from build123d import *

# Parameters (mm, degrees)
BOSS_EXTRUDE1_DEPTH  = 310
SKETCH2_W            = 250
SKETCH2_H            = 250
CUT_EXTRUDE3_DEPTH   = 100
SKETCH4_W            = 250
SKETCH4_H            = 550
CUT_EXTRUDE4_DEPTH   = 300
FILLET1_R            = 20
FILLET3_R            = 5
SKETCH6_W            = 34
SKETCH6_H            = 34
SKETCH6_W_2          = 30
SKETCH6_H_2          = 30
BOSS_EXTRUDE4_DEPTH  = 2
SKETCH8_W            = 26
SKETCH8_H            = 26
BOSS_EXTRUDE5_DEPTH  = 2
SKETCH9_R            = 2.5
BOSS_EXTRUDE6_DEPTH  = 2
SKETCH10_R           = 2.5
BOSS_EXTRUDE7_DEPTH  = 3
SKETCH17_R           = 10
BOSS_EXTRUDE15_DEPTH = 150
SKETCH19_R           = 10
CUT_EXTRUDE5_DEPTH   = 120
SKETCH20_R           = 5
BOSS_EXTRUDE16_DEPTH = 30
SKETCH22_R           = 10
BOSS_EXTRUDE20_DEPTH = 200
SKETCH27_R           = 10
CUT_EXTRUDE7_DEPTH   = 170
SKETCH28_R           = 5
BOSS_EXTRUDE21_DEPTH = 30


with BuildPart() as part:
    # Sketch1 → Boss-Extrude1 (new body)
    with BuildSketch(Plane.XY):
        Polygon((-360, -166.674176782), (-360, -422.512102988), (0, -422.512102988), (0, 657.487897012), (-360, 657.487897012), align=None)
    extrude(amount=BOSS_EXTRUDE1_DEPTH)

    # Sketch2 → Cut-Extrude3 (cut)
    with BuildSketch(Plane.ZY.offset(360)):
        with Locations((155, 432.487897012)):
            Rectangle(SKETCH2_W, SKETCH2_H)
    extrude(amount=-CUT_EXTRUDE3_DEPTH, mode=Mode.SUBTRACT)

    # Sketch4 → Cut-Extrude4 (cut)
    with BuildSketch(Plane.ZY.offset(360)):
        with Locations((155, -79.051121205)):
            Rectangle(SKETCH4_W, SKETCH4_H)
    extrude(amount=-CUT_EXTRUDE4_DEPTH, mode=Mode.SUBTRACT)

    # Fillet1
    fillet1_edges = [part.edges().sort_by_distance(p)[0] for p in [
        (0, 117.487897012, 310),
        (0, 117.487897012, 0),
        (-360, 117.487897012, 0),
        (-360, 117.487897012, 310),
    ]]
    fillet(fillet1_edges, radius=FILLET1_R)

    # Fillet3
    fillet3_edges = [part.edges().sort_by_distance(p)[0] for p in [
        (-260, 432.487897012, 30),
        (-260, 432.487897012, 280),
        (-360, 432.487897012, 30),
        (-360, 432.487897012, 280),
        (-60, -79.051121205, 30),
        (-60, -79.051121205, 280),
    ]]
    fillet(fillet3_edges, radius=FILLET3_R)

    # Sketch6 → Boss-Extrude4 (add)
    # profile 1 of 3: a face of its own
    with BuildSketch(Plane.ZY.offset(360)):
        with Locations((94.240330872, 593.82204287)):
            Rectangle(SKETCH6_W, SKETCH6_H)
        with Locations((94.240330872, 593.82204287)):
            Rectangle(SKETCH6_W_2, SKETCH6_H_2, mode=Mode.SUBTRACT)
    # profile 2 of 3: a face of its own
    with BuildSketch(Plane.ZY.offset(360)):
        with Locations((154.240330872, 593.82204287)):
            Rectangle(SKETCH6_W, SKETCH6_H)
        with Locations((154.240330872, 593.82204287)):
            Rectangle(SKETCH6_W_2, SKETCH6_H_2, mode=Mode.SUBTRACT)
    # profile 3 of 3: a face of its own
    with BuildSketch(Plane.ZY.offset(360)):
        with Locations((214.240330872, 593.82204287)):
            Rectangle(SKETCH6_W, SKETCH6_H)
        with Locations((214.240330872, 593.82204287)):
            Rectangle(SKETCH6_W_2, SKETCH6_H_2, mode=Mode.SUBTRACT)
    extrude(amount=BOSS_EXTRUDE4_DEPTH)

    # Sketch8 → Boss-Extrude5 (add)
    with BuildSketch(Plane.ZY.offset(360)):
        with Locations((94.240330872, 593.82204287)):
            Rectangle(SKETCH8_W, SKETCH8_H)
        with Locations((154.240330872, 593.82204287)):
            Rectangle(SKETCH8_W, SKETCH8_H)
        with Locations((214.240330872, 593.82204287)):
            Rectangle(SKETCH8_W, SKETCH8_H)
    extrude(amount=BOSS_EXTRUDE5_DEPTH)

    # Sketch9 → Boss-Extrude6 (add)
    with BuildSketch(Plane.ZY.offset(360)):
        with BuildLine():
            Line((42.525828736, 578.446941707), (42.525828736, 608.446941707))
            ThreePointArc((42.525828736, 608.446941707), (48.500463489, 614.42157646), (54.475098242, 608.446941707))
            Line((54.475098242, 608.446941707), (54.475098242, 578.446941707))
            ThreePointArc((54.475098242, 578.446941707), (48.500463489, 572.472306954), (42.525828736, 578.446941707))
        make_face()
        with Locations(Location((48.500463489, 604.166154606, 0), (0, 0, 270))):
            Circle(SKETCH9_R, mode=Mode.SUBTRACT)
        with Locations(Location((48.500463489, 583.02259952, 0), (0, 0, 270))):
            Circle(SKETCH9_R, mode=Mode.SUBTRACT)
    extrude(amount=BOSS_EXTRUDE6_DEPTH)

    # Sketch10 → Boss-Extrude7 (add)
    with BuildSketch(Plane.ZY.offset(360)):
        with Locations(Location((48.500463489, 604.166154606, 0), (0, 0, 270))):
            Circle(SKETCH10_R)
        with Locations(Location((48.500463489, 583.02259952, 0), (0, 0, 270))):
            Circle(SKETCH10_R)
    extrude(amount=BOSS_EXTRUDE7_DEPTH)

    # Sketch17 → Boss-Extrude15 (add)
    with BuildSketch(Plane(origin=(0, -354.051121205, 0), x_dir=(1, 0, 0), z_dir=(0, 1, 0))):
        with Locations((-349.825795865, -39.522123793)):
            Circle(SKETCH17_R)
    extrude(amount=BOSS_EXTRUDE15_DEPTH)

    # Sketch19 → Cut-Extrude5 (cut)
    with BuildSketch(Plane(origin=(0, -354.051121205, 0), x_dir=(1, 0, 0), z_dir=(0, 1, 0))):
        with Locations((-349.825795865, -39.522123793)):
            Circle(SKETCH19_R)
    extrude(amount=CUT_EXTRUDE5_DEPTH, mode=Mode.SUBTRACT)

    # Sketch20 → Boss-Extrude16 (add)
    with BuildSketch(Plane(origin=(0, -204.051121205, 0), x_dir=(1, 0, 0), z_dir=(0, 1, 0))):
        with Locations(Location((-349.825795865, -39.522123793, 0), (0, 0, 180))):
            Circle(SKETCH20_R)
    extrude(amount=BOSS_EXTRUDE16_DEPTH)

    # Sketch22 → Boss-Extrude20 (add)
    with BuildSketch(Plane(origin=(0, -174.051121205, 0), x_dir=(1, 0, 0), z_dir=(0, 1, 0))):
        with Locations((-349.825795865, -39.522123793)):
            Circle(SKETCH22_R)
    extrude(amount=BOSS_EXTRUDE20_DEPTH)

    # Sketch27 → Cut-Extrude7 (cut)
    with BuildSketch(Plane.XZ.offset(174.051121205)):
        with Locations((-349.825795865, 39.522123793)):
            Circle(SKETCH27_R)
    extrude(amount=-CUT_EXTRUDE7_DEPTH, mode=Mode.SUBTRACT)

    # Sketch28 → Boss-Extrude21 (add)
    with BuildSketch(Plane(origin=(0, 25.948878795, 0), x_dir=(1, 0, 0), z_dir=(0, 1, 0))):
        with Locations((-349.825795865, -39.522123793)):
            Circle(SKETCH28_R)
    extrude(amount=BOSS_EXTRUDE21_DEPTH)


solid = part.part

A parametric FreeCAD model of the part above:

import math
import FreeCAD as App
import Part
import Sketcher
from FreeCAD import Vector
Q = App.Units.Quantity


def edges_at(feature, points):
    """Names of the edges that pass closest to the given points."""
    edges = feature.Shape.Edges
    near = lambda p: min(range(len(edges)), key=lambda i: edges[i].distToShape(Part.Vertex(*p))[0])
    return sorted({f"Edge{near(p) + 1}" for p in points})

doc = App.newDocument("Part")
body = doc.addObject("PartDesign::Body", "Body")

# Sketch on XY plane
sketch1 = body.newObject("Sketcher::SketchObject", "Sketch")
sketch1.AttachmentSupport = (doc.getObject("XY_Plane"), [""])
sketch1.MapMode = "FlatFace"
sketch1.addGeometry([
    Part.LineSegment(Vector(-360, -423, 0), Vector(0, -423, 0)),
    Part.LineSegment(Vector(0, -423, 0), Vector(0, 657, 0)),
    Part.LineSegment(Vector(0, 657, 0), Vector(-360, 657, 0)),
    Part.LineSegment(Vector(-360, 657, 0), Vector(-360, -423, 0)),
], False)
sketch1.addConstraint([
    Sketcher.Constraint("Coincident", 0, 2, 1, 1),
    Sketcher.Constraint("Coincident", 1, 2, 2, 1),
    Sketcher.Constraint("Coincident", 2, 2, 3, 1),
    Sketcher.Constraint("Coincident", 3, 2, 0, 1),
    Sketcher.Constraint("Horizontal", 0),
    Sketcher.Constraint("Vertical", 1),
    Sketcher.Constraint("Horizontal", 2),
    Sketcher.Constraint("Vertical", 3),
    Sketcher.Constraint("PointOnObject", 0, 2, -2),
    Sketcher.Constraint("DistanceX", 0, 1, 0, 2, Q("360 mm")),
    Sketcher.Constraint("DistanceY", 1, 1, 1, 2, Q("1080 mm")),
    Sketcher.Constraint("DistanceY", 0, 2, -1, 1, Q("422.512103 mm")),
])
pad1 = body.newObject("PartDesign::Pad", "Pad")
pad1.Profile = sketch1
pad1.Length = 310

# Sketch on YZ plane
sketch2 = body.newObject("Sketcher::SketchObject", "Sketch001")
sketch2.AttachmentSupport = (doc.getObject("YZ_Plane"), [""])
sketch2.MapMode = "FlatFace"
sketch2.AttachmentOffset = App.Placement(Vector(0, 0, -360), App.Rotation())
sketch2.addGeometry([
    Part.LineSegment(Vector(557, 30, 0), Vector(307, 30, 0)),
    Part.LineSegment(Vector(307, 30, 0), Vector(307, 280, 0)),
    Part.LineSegment(Vector(307, 280, 0), Vector(557, 280, 0)),
    Part.LineSegment(Vector(557, 280, 0), Vector(557, 30, 0)),
], False)
sketch2.addConstraint([
    Sketcher.Constraint("Coincident", 0, 2, 1, 1),
    Sketcher.Constraint("Coincident", 1, 2, 2, 1),
    Sketcher.Constraint("Coincident", 2, 2, 3, 1),
    Sketcher.Constraint("Coincident", 3, 2, 0, 1),
    Sketcher.Constraint("Horizontal", 0),
    Sketcher.Constraint("Vertical", 1),
    Sketcher.Constraint("Horizontal", 2),
    Sketcher.Constraint("Vertical", 3),
    Sketcher.Constraint("Equal", 2, 1),
    Sketcher.Constraint("DistanceX", 0, 2, 0, 1, Q("250 mm")),
    Sketcher.Constraint("DistanceY", -1, 1, 0, 2, Q("30 mm")),
    Sketcher.Constraint("DistanceX", -1, 1, 0, 2, Q("307.487897 mm")),
])
pocket1 = body.newObject("PartDesign::Pocket", "Pocket")
pocket1.Profile = sketch2
pocket1.Length = 100
pocket1.Reversed = True

# Sketch on YZ plane
sketch3 = body.newObject("Sketcher::SketchObject", "Sketch002")
sketch3.AttachmentSupport = (doc.getObject("YZ_Plane"), [""])
sketch3.MapMode = "FlatFace"
sketch3.AttachmentOffset = App.Placement(Vector(0, 0, -360), App.Rotation())
sketch3.addGeometry([
    Part.LineSegment(Vector(196, 30, 0), Vector(-354, 30, 0)),
    Part.LineSegment(Vector(-354, 30, 0), Vector(-354, 280, 0)),
    Part.LineSegment(Vector(-354, 280, 0), Vector(196, 280, 0)),
    Part.LineSegment(Vector(196, 280, 0), Vector(196, 30, 0)),
], False)
sketch3.addConstraint([
    Sketcher.Constraint("Coincident", 0, 2, 1, 1),
    Sketcher.Constraint("Coincident", 1, 2, 2, 1),
    Sketcher.Constraint("Coincident", 2, 2, 3, 1),
    Sketcher.Constraint("Coincident", 3, 2, 0, 1),
    Sketcher.Constraint("Horizontal", 0),
    Sketcher.Constraint("Vertical", 1),
    Sketcher.Constraint("Horizontal", 2),
    Sketcher.Constraint("Vertical", 3),
    Sketcher.Constraint("DistanceX", 0, 2, 0, 1, Q("550 mm")),
    Sketcher.Constraint("DistanceY", 1, 1, 1, 2, Q("250 mm")),
    Sketcher.Constraint("DistanceY", -1, 1, 0, 2, Q("30 mm")),
    Sketcher.Constraint("DistanceX", 0, 2, -1, 1, Q("354.051121 mm")),
])
pocket2 = body.newObject("PartDesign::Pocket", "Pocket001")
pocket2.Profile = sketch3
pocket2.Length = 300
pocket2.Reversed = True
doc.recompute()

fillet = body.newObject("PartDesign::Fillet", "Fillet")
fillet.Base = (pocket2, edges_at(pocket2, [
    (0, 117.488, 310),
    (0, 117.488, 0),
    (-360, 117.488, 0),
    (-360, 117.488, 310),
]))
fillet.Radius = 20
doc.recompute()

fillet2 = body.newObject("PartDesign::Fillet", "Fillet001")
fillet2.Base = (fillet, edges_at(fillet, [
    (-260, 432.488, 30),
    (-260, 432.488, 280),
    (-360, 432.488, 30),
    (-360, 432.488, 280),
    (-60, -79.051, 30),
    (-60, -79.051, 280),
]))
fillet2.Radius = 5

# Sketch on YZ plane
sketch4 = body.newObject("Sketcher::SketchObject", "Sketch003")
sketch4.AttachmentSupport = (doc.getObject("YZ_Plane"), [""])
sketch4.MapMode = "FlatFace"
sketch4.AttachmentOffset = App.Placement(Vector(0, 0, -360), App.Rotation())
sketch4.addGeometry([
    Part.LineSegment(Vector(611, 77, 0), Vector(577, 77, 0)),  # 0
    Part.LineSegment(Vector(577, 77, 0), Vector(577, 111, 0)),  # 1
    Part.LineSegment(Vector(577, 111, 0), Vector(611, 111, 0)),  # 2
    Part.LineSegment(Vector(611, 111, 0), Vector(611, 77, 0)),  # 3
    Part.LineSegment(Vector(579, 109, 0), Vector(579, 79, 0)),  # 4
    Part.LineSegment(Vector(579, 79, 0), Vector(609, 79, 0)),  # 5
    Part.LineSegment(Vector(609, 79, 0), Vector(609, 109, 0)),  # 6
    Part.LineSegment(Vector(609, 109, 0), Vector(579, 109, 0)),  # 7
    Part.LineSegment(Vector(611, 137, 0), Vector(577, 137, 0)),  # 8
    Part.LineSegment(Vector(577, 137, 0), Vector(577, 171, 0)),  # 9
    Part.LineSegment(Vector(577, 171, 0), Vector(611, 171, 0)),  # 10
    Part.LineSegment(Vector(611, 171, 0), Vector(611, 137, 0)),  # 11
    Part.LineSegment(Vector(579, 169, 0), Vector(579, 139, 0)),  # 12
    Part.LineSegment(Vector(579, 139, 0), Vector(609, 139, 0)),  # 13
    Part.LineSegment(Vector(609, 139, 0), Vector(609, 169, 0)),  # 14
    Part.LineSegment(Vector(609, 169, 0), Vector(579, 169, 0)),  # 15
    Part.LineSegment(Vector(611, 197, 0), Vector(577, 197, 0)),  # 16
    Part.LineSegment(Vector(577, 197, 0), Vector(577, 231, 0)),  # 17
    Part.LineSegment(Vector(577, 231, 0), Vector(611, 231, 0)),  # 18
    Part.LineSegment(Vector(611, 231, 0), Vector(611, 197, 0)),  # 19
    Part.LineSegment(Vector(579, 229, 0), Vector(579, 199, 0)),  # 20
    Part.LineSegment(Vector(579, 199, 0), Vector(609, 199, 0)),  # 21
    Part.LineSegment(Vector(609, 199, 0), Vector(609, 229, 0)),  # 22
    Part.LineSegment(Vector(609, 229, 0), Vector(579, 229, 0)),  # 23
], False)
sketch4.addConstraint([
    Sketcher.Constraint("Coincident", 0, 2, 1, 1),
    Sketcher.Constraint("Coincident", 1, 2, 2, 1),
    Sketcher.Constraint("Coincident", 2, 2, 3, 1),
    Sketcher.Constraint("Coincident", 3, 2, 0, 1),
    Sketcher.Constraint("Coincident", 4, 2, 5, 1),
    Sketcher.Constraint("Coincident", 5, 2, 6, 1),
    Sketcher.Constraint("Coincident", 6, 2, 7, 1),
    Sketcher.Constraint("Coincident", 7, 2, 4, 1),
    Sketcher.Constraint("Coincident", 8, 2, 9, 1),
    Sketcher.Constraint("Coincident", 9, 2, 10, 1),
    Sketcher.Constraint("Coincident", 10, 2, 11, 1),
    Sketcher.Constraint("Coincident", 11, 2, 8, 1),
    Sketcher.Constraint("Coincident", 12, 2, 13, 1),
    Sketcher.Constraint("Coincident", 13, 2, 14, 1),
    Sketcher.Constraint("Coincident", 14, 2, 15, 1),
    Sketcher.Constraint("Coincident", 15, 2, 12, 1),
    Sketcher.Constraint("Coincident", 16, 2, 17, 1),
    Sketcher.Constraint("Coincident", 17, 2, 18, 1),
    Sketcher.Constraint("Coincident", 18, 2, 19, 1),
    Sketcher.Constraint("Coincident", 19, 2, 16, 1),
    Sketcher.Constraint("Coincident", 20, 2, 21, 1),
    Sketcher.Constraint("Coincident", 21, 2, 22, 1),
    Sketcher.Constraint("Coincident", 22, 2, 23, 1),
    Sketcher.Constraint("Coincident", 23, 2, 20, 1),
    Sketcher.Constraint("Horizontal", 0),
    Sketcher.Constraint("Vertical", 1),
    Sketcher.Constraint("Horizontal", 2),
    Sketcher.Constraint("Vertical", 3),
    Sketcher.Constraint("Vertical", 4),
    Sketcher.Constraint("Horizontal", 5),
    Sketcher.Constraint("Vertical", 6),
    Sketcher.Constraint("Horizontal", 7),
    Sketcher.Constraint("Horizontal", 8),
    Sketcher.Constraint("Vertical", 9),
    Sketcher.Constraint("Horizontal", 10),
    Sketcher.Constraint("Vertical", 11),
    Sketcher.Constraint("Vertical", 12),
    Sketcher.Constraint("Horizontal", 13),
    Sketcher.Constraint("Vertical", 14),
    Sketcher.Constraint("Horizontal", 15),
    Sketcher.Constraint("Horizontal", 16),
    Sketcher.Constraint("Vertical", 17),
    Sketcher.Constraint("Horizontal", 18),
    Sketcher.Constraint("Vertical", 19),
    Sketcher.Constraint("Vertical", 20),
    Sketcher.Constraint("Horizontal", 21),
    Sketcher.Constraint("Vertical", 22),
    Sketcher.Constraint("Horizontal", 23),
    Sketcher.Constraint("Vertical", 1, 2, 8, 2),
    Sketcher.Constraint("Vertical", 3, 2, 10, 2),
    Sketcher.Constraint("Vertical", 7, 2, 12, 2),
    Sketcher.Constraint("Vertical", 6, 2, 13, 2),
    Sketcher.Constraint("Vertical", 9, 2, 16, 2),
    Sketcher.Constraint("Vertical", 11, 2, 18, 2),
    Sketcher.Constraint("Vertical", 15, 2, 20, 2),
    Sketcher.Constraint("Vertical", 14, 2, 21, 2),
    Sketcher.Constraint("Equal", 18, 1),
    Sketcher.Constraint("Equal", 23, 4),
    Sketcher.Constraint("Equal", 3, 9),
    Sketcher.Constraint("Equal", 6, 12),
    Sketcher.Constraint("Equal", 11, 17),
    Sketcher.Constraint("Equal", 14, 20),
    Sketcher.Constraint("DistanceX", 0, 2, 0, 1, Q("34 mm")),
    Sketcher.Constraint("DistanceX", 5, 1, 5, 2, Q("30 mm")),
    Sketcher.Constraint("DistanceX", 0, 2, 4, 2, Q("2 mm")),
    Sketcher.Constraint("DistanceY", 0, 2, 4, 2, Q("2 mm")),
    Sketcher.Constraint("DistanceY", 1, 2, 8, 2, Q("26 mm")),
    Sketcher.Constraint("DistanceY", 8, 2, 12, 2, Q("2 mm")),
    Sketcher.Constraint("DistanceY", 9, 2, 16, 2, Q("26 mm")),
    Sketcher.Constraint("DistanceY", 16, 2, 20, 2, Q("2 mm")),
    Sketcher.Constraint("DistanceY", -1, 1, 0, 2, Q("77.240331 mm")),
    Sketcher.Constraint("DistanceX", -1, 1, 0, 2, Q("576.822043 mm")),
])
pad2 = body.newObject("PartDesign::Pad", "Pad001")
pad2.Profile = sketch4
pad2.Length = 2
pad2.Reversed = True

# Sketch on YZ plane
sketch5 = body.newObject("Sketcher::SketchObject", "Sketch004")
sketch5.AttachmentSupport = (doc.getObject("YZ_Plane"), [""])
sketch5.MapMode = "FlatFace"
sketch5.AttachmentOffset = App.Placement(Vector(0, 0, -360), App.Rotation())
sketch5.addGeometry([
    Part.LineSegment(Vector(607, 81, 0), Vector(581, 81, 0)),  # 0
    Part.LineSegment(Vector(581, 81, 0), Vector(581, 107, 0)),  # 1
    Part.LineSegment(Vector(581, 107, 0), Vector(607, 107, 0)),  # 2
    Part.LineSegment(Vector(607, 107, 0), Vector(607, 81, 0)),  # 3
    Part.LineSegment(Vector(607, 141, 0), Vector(581, 141, 0)),  # 4
    Part.LineSegment(Vector(581, 141, 0), Vector(581, 167, 0)),  # 5
    Part.LineSegment(Vector(581, 167, 0), Vector(607, 167, 0)),  # 6
    Part.LineSegment(Vector(607, 167, 0), Vector(607, 141, 0)),  # 7
    Part.LineSegment(Vector(607, 201, 0), Vector(581, 201, 0)),  # 8
    Part.LineSegment(Vector(581, 201, 0), Vector(581, 227, 0)),  # 9
    Part.LineSegment(Vector(581, 227, 0), Vector(607, 227, 0)),  # 10
    Part.LineSegment(Vector(607, 227, 0), Vector(607, 201, 0)),  # 11
], False)
sketch5.addConstraint([
    Sketcher.Constraint("Coincident", 0, 2, 1, 1),
    Sketcher.Constraint("Coincident", 1, 2, 2, 1),
    Sketcher.Constraint("Coincident", 2, 2, 3, 1),
    Sketcher.Constraint("Coincident", 3, 2, 0, 1),
    Sketcher.Constraint("Coincident", 4, 2, 5, 1),
    Sketcher.Constraint("Coincident", 5, 2, 6, 1),
    Sketcher.Constraint("Coincident", 6, 2, 7, 1),
    Sketcher.Constraint("Coincident", 7, 2, 4, 1),
    Sketcher.Constraint("Coincident", 8, 2, 9, 1),
    Sketcher.Constraint("Coincident", 9, 2, 10, 1),
    Sketcher.Constraint("Coincident", 10, 2, 11, 1),
    Sketcher.Constraint("Coincident", 11, 2, 8, 1),
    Sketcher.Constraint("Horizontal", 0),
    Sketcher.Constraint("Vertical", 1),
    Sketcher.Constraint("Horizontal", 2),
    Sketcher.Constraint("Vertical", 3),
    Sketcher.Constraint("Horizontal", 4),
    Sketcher.Constraint("Vertical", 5),
    Sketcher.Constraint("Horizontal", 6),
    Sketcher.Constraint("Vertical", 7),
    Sketcher.Constraint("Horizontal", 8),
    Sketcher.Constraint("Vertical", 9),
    Sketcher.Constraint("Horizontal", 10),
    Sketcher.Constraint("Vertical", 11),
    Sketcher.Constraint("Vertical", 1, 2, 4, 2),
    Sketcher.Constraint("Vertical", 3, 2, 6, 2),
    Sketcher.Constraint("Vertical", 5, 2, 8, 2),
    Sketcher.Constraint("Vertical", 7, 2, 10, 2),
    Sketcher.Constraint("Equal", 10, 1),
    Sketcher.Constraint("Equal", 3, 5),
    Sketcher.Constraint("Equal", 7, 9),
    Sketcher.Constraint("DistanceX", 0, 2, 0, 1, Q("26 mm")),
    Sketcher.Constraint("DistanceY", 1, 2, 4, 2, Q("34 mm")),
    Sketcher.Constraint("DistanceY", 5, 2, 8, 2, Q("34 mm")),
    Sketcher.Constraint("DistanceY", -1, 1, 0, 2, Q("81.240331 mm")),
    Sketcher.Constraint("DistanceX", -1, 1, 0, 2, Q("580.822043 mm")),
])
pad3 = body.newObject("PartDesign::Pad", "Pad002")
pad3.Profile = sketch5
pad3.Length = 2
pad3.Reversed = True

# Sketch on YZ plane
sketch6 = body.newObject("Sketcher::SketchObject", "Sketch005")
sketch6.AttachmentSupport = (doc.getObject("YZ_Plane"), [""])
sketch6.MapMode = "FlatFace"
sketch6.AttachmentOffset = App.Placement(Vector(0, 0, -360), App.Rotation())
sketch6.addGeometry([
    Part.LineSegment(Vector(608.4, 42.5, 0), Vector(578.4, 42.5, 0)),  # 0
    Part.ArcOfCircle(Part.Circle(Vector(578.4, 48.5, 0), Vector(0, 0, 1), 6), math.radians(90), math.radians(270)),  # 1
    Part.LineSegment(Vector(578.4, 54.5, 0), Vector(608.4, 54.5, 0)),  # 2
    Part.ArcOfCircle(Part.Circle(Vector(608.4, 48.5, 0), Vector(0, 0, 1), 6), math.radians(-90), math.radians(90)),  # 3
    Part.Circle(Vector(583, 48.5, 0), Vector(0, 0, 1), 2.5),  # 4
    Part.Circle(Vector(604.2, 48.5, 0), Vector(0, 0, 1), 2.5),  # 5
], False)
sketch6.addConstraint([
    Sketcher.Constraint("Tangent", 0, 2, 1, 2),
    Sketcher.Constraint("Tangent", 1, 1, 2, 1),
    Sketcher.Constraint("Tangent", 2, 2, 3, 2),
    Sketcher.Constraint("Tangent", 3, 1, 0, 1),
    Sketcher.Constraint("Horizontal", 0),
    Sketcher.Constraint("Horizontal", 2),
    Sketcher.Constraint("Equal", 4, 5),
    Sketcher.Constraint("Horizontal", 3, 3, 4, 3),
    Sketcher.Constraint("Horizontal", 4, 3, 5, 3),
    Sketcher.Constraint("Diameter", 4, Q("5 mm")),
    Sketcher.Constraint("DistanceX", 0, 2, 0, 1, Q("30 mm")),
    Sketcher.Constraint("Radius", 1, Q("5.974635 mm")),
    Sketcher.Constraint("DistanceX", -1, 1, 4, 3, Q("583.0226 mm")),
    Sketcher.Constraint("DistanceY", -1, 1, 1, 1, Q("54.475098 mm")),
    Sketcher.Constraint("DistanceX", -1, 1, 1, 3, Q("578.446942 mm")),
    Sketcher.Constraint("DistanceX", -1, 1, 5, 3, Q("604.166155 mm")),
])
pad4 = body.newObject("PartDesign::Pad", "Pad003")
pad4.Profile = sketch6
pad4.Length = 2
pad4.Reversed = True

# Sketch on YZ plane
sketch7 = body.newObject("Sketcher::SketchObject", "Sketch006")
sketch7.AttachmentSupport = (doc.getObject("YZ_Plane"), [""])
sketch7.MapMode = "FlatFace"
sketch7.AttachmentOffset = App.Placement(Vector(0, 0, -360), App.Rotation())
sketch7.addGeometry([
    Part.Circle(Vector(604.2, 48.5, 0), Vector(0, 0, 1), 2.5),
    Part.Circle(Vector(583, 48.5, 0), Vector(0, 0, 1), 2.5),
], False)
sketch7.addConstraint([
    Sketcher.Constraint("Equal", 0, 1),
    Sketcher.Constraint("Horizontal", 0, 3, 1, 3),
    Sketcher.Constraint("Diameter", 0, Q("5 mm")),
    Sketcher.Constraint("DistanceX", -1, 1, 1, 3, Q("583.0226 mm")),
    Sketcher.Constraint("DistanceX", -1, 1, 0, 3, Q("604.166155 mm")),
    Sketcher.Constraint("DistanceY", -1, 1, 0, 3, Q("48.500463 mm")),
])
pad5 = body.newObject("PartDesign::Pad", "Pad004")
pad5.Profile = sketch7
pad5.Length = 3
pad5.Reversed = True

# Sketch on XZ plane
sketch8 = body.newObject("Sketcher::SketchObject", "Sketch007")
sketch8.AttachmentSupport = (doc.getObject("XZ_Plane"), [""])
sketch8.MapMode = "FlatFace"
sketch8.AttachmentOffset = App.Placement(Vector(0, 0, 354.051121), App.Rotation())
sketch8.addGeometry(Part.Circle(Vector(-350, 40, 0), Vector(0, 0, 1), 10), False)
sketch8.addConstraint([
    Sketcher.Constraint("Diameter", 0, Q("20 mm")),
    Sketcher.Constraint("DistanceX", 0, 3, -1, 1, Q("349.825796 mm")),
    Sketcher.Constraint("DistanceY", -1, 1, 0, 3, Q("39.522124 mm")),
])
pad6 = body.newObject("PartDesign::Pad", "Pad005")
pad6.Profile = sketch8
pad6.Length = 150
pad6.Reversed = True

# Sketch on XZ plane
sketch9 = body.newObject("Sketcher::SketchObject", "Sketch008")
sketch9.AttachmentSupport = (doc.getObject("XZ_Plane"), [""])
sketch9.MapMode = "FlatFace"
sketch9.AttachmentOffset = App.Placement(Vector(0, 0, 354.051121), App.Rotation())
sketch9.addGeometry(Part.Circle(Vector(-350, 40, 0), Vector(0, 0, 1), 10), False)
sketch9.addConstraint([
    Sketcher.Constraint("Diameter", 0, Q("20 mm")),
    Sketcher.Constraint("DistanceX", 0, 3, -1, 1, Q("349.825796 mm")),
    Sketcher.Constraint("DistanceY", -1, 1, 0, 3, Q("39.522124 mm")),
])
pocket3 = body.newObject("PartDesign::Pocket", "Pocket002")
pocket3.Profile = sketch9
pocket3.Length = 120

# Sketch on XZ plane
sketch10 = body.newObject("Sketcher::SketchObject", "Sketch009")
sketch10.AttachmentSupport = (doc.getObject("XZ_Plane"), [""])
sketch10.MapMode = "FlatFace"
sketch10.AttachmentOffset = App.Placement(Vector(0, 0, 204.051121), App.Rotation())
sketch10.addGeometry(Part.Circle(Vector(-350, 40, 0), Vector(0, 0, 1), 5), False)
sketch10.addConstraint([
    Sketcher.Constraint("Diameter", 0, Q("10 mm")),
    Sketcher.Constraint("DistanceX", 0, 3, -1, 1, Q("349.825796 mm")),
    Sketcher.Constraint("DistanceY", -1, 1, 0, 3, Q("39.522124 mm")),
])
pad7 = body.newObject("PartDesign::Pad", "Pad006")
pad7.Profile = sketch10
pad7.Length = 30
pad7.Reversed = True

# Sketch on XZ plane
sketch11 = body.newObject("Sketcher::SketchObject", "Sketch010")
sketch11.AttachmentSupport = (doc.getObject("XZ_Plane"), [""])
sketch11.MapMode = "FlatFace"
sketch11.AttachmentOffset = App.Placement(Vector(0, 0, 174.051121), App.Rotation())
sketch11.addGeometry(Part.Circle(Vector(-350, 40, 0), Vector(0, 0, 1), 10), False)
sketch11.addConstraint([
    Sketcher.Constraint("Diameter", 0, Q("20 mm")),
    Sketcher.Constraint("DistanceX", 0, 3, -1, 1, Q("349.825796 mm")),
    Sketcher.Constraint("DistanceY", -1, 1, 0, 3, Q("39.522124 mm")),
])
pad8 = body.newObject("PartDesign::Pad", "Pad007")
pad8.Profile = sketch11
pad8.Length = 200
pad8.Reversed = True

# Sketch on XZ plane
sketch12 = body.newObject("Sketcher::SketchObject", "Sketch011")
sketch12.AttachmentSupport = (doc.getObject("XZ_Plane"), [""])
sketch12.MapMode = "FlatFace"
sketch12.AttachmentOffset = App.Placement(Vector(0, 0, 174.051121), App.Rotation())
sketch12.addGeometry(Part.Circle(Vector(-350, 40, 0), Vector(0, 0, 1), 10), False)
sketch12.addConstraint([
    Sketcher.Constraint("Diameter", 0, Q("20 mm")),
    Sketcher.Constraint("DistanceX", 0, 3, -1, 1, Q("349.825796 mm")),
    Sketcher.Constraint("DistanceY", -1, 1, 0, 3, Q("39.522124 mm")),
])
pocket4 = body.newObject("PartDesign::Pocket", "Pocket003")
pocket4.Profile = sketch12
pocket4.Length = 170

# Sketch on XZ plane
sketch13 = body.newObject("Sketcher::SketchObject", "Sketch012")
sketch13.AttachmentSupport = (doc.getObject("XZ_Plane"), [""])
sketch13.MapMode = "FlatFace"
sketch13.AttachmentOffset = App.Placement(Vector(0, 0, -25.948879), App.Rotation())
sketch13.addGeometry(Part.Circle(Vector(-350, 40, 0), Vector(0, 0, 1), 5), False)
sketch13.addConstraint([
    Sketcher.Constraint("Diameter", 0, Q("10 mm")),
    Sketcher.Constraint("DistanceX", 0, 3, -1, 1, Q("349.825796 mm")),
    Sketcher.Constraint("DistanceY", -1, 1, 0, 3, Q("39.522124 mm")),
])
pad9 = body.newObject("PartDesign::Pad", "Pad008")
pad9.Profile = sketch13
pad9.Length = 30
pad9.Reversed = True

doc.recompute()
